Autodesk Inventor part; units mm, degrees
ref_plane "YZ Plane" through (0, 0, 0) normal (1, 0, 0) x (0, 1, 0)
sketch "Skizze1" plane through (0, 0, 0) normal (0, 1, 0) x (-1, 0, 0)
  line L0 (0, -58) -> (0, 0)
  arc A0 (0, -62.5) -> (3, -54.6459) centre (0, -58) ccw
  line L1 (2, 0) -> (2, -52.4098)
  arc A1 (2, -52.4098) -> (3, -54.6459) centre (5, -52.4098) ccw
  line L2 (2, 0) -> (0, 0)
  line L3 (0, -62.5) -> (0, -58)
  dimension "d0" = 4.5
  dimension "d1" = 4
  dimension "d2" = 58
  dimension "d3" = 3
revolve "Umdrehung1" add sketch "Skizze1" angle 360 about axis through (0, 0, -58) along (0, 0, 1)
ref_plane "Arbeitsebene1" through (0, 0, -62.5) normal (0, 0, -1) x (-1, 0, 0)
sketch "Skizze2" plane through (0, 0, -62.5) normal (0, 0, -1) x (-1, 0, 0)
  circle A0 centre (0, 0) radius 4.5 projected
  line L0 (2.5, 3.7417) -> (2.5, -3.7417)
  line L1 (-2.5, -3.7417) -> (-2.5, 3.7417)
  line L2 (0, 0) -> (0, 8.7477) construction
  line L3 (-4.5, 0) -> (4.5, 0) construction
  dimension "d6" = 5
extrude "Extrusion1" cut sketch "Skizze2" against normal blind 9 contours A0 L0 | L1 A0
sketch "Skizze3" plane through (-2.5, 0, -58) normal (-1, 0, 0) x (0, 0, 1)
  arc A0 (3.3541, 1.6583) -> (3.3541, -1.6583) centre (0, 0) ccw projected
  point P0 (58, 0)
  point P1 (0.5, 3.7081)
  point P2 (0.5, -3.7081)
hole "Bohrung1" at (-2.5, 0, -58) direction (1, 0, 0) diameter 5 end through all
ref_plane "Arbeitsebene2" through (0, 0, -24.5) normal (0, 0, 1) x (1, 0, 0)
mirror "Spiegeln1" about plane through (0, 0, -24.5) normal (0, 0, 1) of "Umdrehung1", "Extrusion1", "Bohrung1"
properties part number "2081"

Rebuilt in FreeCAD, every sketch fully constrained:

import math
import FreeCAD as App
import Part
import Sketcher
from FreeCAD import Vector

doc = App.newDocument("Part")
body = doc.addObject("PartDesign::Body", "Body")

# Sketch on XZ plane
sketch1 = body.newObject("Sketcher::SketchObject", "Sketch")
sketch1.AttachmentSupport = (doc.getObject("XZ_Plane"), [""])
sketch1.MapMode = "FlatFace"
sketch1.addGeometry([
    Part.LineSegment(Vector(0, 0, 0), Vector(0, -62.5, 0)),  # 0
    Part.ArcOfCircle(Part.Circle(Vector(0, -58, 0), Vector(0, 0, 1), 4.5), math.radians(132), math.radians(270)),  # 1
    Part.ArcOfCircle(Part.Circle(Vector(-5, -52.4, 0), Vector(0, 0, 1), 3), math.radians(-48), math.radians(0)),  # 2
    Part.LineSegment(Vector(-2, -52.4, 0), Vector(-2, 0, 0)),  # 3
    Part.LineSegment(Vector(-2, 0, 0), Vector(0, 0, 0)),  # 4
], False)
sketch1.addConstraint([
    Sketcher.Constraint("Coincident", 0, 2, 1, 2),
    Sketcher.Constraint("Tangent", 1, 1, 2, 1),
    Sketcher.Constraint("Tangent", 2, 2, 3, 1),
    Sketcher.Constraint("Coincident", 3, 2, 4, 1),
    Sketcher.Constraint("Coincident", 4, 2, 0, 1),
    Sketcher.Constraint("Vertical", 0),
    Sketcher.Constraint("Vertical", 3),
    Sketcher.Constraint("Horizontal", 4),
    Sketcher.Constraint("Coincident", 4, 2, -1, 1),
    Sketcher.Constraint("PointOnObject", 1, 3, -2),
    Sketcher.Constraint("Radius", 2, 3.0),
    Sketcher.Constraint("Radius", 1, 4.5),
    Sketcher.Constraint("DistanceY", 1, 3, -1, 1, 58.0),
    Sketcher.Constraint("DistanceX", 1, 1, -1, 1, 3.0),
])
revolution = body.newObject("PartDesign::Revolution", "Revolution")
revolution.Profile = sketch1
revolution.ReferenceAxis = (sketch1, ["V_Axis"])
revolution.Angle = 360

# Sketch on XY plane
sketch2 = body.newObject("Sketcher::SketchObject", "Sketch001")
sketch2.AttachmentSupport = (doc.getObject("XY_Plane"), [""])
sketch2.MapMode = "FlatFace"
sketch2.AttachmentOffset = App.Placement(Vector(0, 0, -62.5), App.Rotation())
sketch2.addGeometry([
    Part.ArcOfCircle(Part.Circle(Vector(0, 0, 0), Vector(0, 0, 1), 4.5), math.radians(124), math.radians(236)),
    Part.LineSegment(Vector(-2.5, -3.7, 0), Vector(-2.5, 3.7, 0)),
    Part.LineSegment(Vector(2.5, -3.7, 0), Vector(2.5, 3.7, 0)),
    Part.ArcOfCircle(Part.Circle(Vector(0, 0, 0), Vector(0, 0, 1), 4.5), math.radians(-56), math.radians(56)),
], False)
sketch2.addConstraint([
    Sketcher.Constraint("Coincident", 0, 1, 1, 2),
    Sketcher.Constraint("Coincident", 1, 1, 0, 2),
    Sketcher.Constraint("Coincident", 2, 1, 3, 1),
    Sketcher.Constraint("Coincident", 3, 2, 2, 2),
    Sketcher.Constraint("Vertical", 1),
    Sketcher.Constraint("Vertical", 2),
    Sketcher.Constraint("Coincident", 0, 3, -1, 1),
    Sketcher.Constraint("Coincident", 3, 3, -1, 1),
    Sketcher.Constraint("Equal", 0, 3),
    Sketcher.Constraint("Horizontal", 1, 1, 2, 1),
    Sketcher.Constraint("DistanceX", 1, 1, 2, 1, 5.0),
    Sketcher.Constraint("Radius", 0, 4.5),
])
pocket1 = body.newObject("PartDesign::Pocket", "Pocket")
pocket1.Profile = sketch2
pocket1.Length = 9
pocket1.Reversed = True

# Sketch on YZ plane
sketch3 = body.newObject("Sketcher::SketchObject", "Sketch002")
sketch3.AttachmentSupport = (doc.getObject("YZ_Plane"), [""])
sketch3.MapMode = "FlatFace"
sketch3.AttachmentOffset = App.Placement(Vector(0, 0, -2.5), App.Rotation())
sketch3.addGeometry(Part.Circle(Vector(0, -58, 0), Vector(0, 0, 1), 2.5), False)
sketch3.addConstraint([
    Sketcher.Constraint("PointOnObject", 0, 3, -2),
    Sketcher.Constraint("Diameter", 0, 5.0),
    Sketcher.Constraint("DistanceY", 0, 3, -1, 1, 58.0),
])
doc.recompute()
hole = body.newObject("PartDesign::Hole", "Hole")
hole.Profile = sketch3
hole.ThreadType = "None"
hole.Diameter = 5
hole.DepthType = "ThroughAll"
hole.Reversed = True
doc.recompute()

datumplane = body.newObject("PartDesign::Plane", "DatumPlane")
datumplane.AttachmentSupport = (doc.getObject("XY_Plane"), [""])
datumplane.MapMode = "FlatFace"
datumplane.AttachmentOffset = App.Placement(Vector(0, 0, -24.5), App.Rotation())
mirrored = body.newObject("PartDesign::Mirrored", "Mirrored")
mirrored.Originals = [revolution, pocket1, hole]
mirrored.MirrorPlane = (datumplane, [""])
body.Tip = mirrored

doc.recompute()
